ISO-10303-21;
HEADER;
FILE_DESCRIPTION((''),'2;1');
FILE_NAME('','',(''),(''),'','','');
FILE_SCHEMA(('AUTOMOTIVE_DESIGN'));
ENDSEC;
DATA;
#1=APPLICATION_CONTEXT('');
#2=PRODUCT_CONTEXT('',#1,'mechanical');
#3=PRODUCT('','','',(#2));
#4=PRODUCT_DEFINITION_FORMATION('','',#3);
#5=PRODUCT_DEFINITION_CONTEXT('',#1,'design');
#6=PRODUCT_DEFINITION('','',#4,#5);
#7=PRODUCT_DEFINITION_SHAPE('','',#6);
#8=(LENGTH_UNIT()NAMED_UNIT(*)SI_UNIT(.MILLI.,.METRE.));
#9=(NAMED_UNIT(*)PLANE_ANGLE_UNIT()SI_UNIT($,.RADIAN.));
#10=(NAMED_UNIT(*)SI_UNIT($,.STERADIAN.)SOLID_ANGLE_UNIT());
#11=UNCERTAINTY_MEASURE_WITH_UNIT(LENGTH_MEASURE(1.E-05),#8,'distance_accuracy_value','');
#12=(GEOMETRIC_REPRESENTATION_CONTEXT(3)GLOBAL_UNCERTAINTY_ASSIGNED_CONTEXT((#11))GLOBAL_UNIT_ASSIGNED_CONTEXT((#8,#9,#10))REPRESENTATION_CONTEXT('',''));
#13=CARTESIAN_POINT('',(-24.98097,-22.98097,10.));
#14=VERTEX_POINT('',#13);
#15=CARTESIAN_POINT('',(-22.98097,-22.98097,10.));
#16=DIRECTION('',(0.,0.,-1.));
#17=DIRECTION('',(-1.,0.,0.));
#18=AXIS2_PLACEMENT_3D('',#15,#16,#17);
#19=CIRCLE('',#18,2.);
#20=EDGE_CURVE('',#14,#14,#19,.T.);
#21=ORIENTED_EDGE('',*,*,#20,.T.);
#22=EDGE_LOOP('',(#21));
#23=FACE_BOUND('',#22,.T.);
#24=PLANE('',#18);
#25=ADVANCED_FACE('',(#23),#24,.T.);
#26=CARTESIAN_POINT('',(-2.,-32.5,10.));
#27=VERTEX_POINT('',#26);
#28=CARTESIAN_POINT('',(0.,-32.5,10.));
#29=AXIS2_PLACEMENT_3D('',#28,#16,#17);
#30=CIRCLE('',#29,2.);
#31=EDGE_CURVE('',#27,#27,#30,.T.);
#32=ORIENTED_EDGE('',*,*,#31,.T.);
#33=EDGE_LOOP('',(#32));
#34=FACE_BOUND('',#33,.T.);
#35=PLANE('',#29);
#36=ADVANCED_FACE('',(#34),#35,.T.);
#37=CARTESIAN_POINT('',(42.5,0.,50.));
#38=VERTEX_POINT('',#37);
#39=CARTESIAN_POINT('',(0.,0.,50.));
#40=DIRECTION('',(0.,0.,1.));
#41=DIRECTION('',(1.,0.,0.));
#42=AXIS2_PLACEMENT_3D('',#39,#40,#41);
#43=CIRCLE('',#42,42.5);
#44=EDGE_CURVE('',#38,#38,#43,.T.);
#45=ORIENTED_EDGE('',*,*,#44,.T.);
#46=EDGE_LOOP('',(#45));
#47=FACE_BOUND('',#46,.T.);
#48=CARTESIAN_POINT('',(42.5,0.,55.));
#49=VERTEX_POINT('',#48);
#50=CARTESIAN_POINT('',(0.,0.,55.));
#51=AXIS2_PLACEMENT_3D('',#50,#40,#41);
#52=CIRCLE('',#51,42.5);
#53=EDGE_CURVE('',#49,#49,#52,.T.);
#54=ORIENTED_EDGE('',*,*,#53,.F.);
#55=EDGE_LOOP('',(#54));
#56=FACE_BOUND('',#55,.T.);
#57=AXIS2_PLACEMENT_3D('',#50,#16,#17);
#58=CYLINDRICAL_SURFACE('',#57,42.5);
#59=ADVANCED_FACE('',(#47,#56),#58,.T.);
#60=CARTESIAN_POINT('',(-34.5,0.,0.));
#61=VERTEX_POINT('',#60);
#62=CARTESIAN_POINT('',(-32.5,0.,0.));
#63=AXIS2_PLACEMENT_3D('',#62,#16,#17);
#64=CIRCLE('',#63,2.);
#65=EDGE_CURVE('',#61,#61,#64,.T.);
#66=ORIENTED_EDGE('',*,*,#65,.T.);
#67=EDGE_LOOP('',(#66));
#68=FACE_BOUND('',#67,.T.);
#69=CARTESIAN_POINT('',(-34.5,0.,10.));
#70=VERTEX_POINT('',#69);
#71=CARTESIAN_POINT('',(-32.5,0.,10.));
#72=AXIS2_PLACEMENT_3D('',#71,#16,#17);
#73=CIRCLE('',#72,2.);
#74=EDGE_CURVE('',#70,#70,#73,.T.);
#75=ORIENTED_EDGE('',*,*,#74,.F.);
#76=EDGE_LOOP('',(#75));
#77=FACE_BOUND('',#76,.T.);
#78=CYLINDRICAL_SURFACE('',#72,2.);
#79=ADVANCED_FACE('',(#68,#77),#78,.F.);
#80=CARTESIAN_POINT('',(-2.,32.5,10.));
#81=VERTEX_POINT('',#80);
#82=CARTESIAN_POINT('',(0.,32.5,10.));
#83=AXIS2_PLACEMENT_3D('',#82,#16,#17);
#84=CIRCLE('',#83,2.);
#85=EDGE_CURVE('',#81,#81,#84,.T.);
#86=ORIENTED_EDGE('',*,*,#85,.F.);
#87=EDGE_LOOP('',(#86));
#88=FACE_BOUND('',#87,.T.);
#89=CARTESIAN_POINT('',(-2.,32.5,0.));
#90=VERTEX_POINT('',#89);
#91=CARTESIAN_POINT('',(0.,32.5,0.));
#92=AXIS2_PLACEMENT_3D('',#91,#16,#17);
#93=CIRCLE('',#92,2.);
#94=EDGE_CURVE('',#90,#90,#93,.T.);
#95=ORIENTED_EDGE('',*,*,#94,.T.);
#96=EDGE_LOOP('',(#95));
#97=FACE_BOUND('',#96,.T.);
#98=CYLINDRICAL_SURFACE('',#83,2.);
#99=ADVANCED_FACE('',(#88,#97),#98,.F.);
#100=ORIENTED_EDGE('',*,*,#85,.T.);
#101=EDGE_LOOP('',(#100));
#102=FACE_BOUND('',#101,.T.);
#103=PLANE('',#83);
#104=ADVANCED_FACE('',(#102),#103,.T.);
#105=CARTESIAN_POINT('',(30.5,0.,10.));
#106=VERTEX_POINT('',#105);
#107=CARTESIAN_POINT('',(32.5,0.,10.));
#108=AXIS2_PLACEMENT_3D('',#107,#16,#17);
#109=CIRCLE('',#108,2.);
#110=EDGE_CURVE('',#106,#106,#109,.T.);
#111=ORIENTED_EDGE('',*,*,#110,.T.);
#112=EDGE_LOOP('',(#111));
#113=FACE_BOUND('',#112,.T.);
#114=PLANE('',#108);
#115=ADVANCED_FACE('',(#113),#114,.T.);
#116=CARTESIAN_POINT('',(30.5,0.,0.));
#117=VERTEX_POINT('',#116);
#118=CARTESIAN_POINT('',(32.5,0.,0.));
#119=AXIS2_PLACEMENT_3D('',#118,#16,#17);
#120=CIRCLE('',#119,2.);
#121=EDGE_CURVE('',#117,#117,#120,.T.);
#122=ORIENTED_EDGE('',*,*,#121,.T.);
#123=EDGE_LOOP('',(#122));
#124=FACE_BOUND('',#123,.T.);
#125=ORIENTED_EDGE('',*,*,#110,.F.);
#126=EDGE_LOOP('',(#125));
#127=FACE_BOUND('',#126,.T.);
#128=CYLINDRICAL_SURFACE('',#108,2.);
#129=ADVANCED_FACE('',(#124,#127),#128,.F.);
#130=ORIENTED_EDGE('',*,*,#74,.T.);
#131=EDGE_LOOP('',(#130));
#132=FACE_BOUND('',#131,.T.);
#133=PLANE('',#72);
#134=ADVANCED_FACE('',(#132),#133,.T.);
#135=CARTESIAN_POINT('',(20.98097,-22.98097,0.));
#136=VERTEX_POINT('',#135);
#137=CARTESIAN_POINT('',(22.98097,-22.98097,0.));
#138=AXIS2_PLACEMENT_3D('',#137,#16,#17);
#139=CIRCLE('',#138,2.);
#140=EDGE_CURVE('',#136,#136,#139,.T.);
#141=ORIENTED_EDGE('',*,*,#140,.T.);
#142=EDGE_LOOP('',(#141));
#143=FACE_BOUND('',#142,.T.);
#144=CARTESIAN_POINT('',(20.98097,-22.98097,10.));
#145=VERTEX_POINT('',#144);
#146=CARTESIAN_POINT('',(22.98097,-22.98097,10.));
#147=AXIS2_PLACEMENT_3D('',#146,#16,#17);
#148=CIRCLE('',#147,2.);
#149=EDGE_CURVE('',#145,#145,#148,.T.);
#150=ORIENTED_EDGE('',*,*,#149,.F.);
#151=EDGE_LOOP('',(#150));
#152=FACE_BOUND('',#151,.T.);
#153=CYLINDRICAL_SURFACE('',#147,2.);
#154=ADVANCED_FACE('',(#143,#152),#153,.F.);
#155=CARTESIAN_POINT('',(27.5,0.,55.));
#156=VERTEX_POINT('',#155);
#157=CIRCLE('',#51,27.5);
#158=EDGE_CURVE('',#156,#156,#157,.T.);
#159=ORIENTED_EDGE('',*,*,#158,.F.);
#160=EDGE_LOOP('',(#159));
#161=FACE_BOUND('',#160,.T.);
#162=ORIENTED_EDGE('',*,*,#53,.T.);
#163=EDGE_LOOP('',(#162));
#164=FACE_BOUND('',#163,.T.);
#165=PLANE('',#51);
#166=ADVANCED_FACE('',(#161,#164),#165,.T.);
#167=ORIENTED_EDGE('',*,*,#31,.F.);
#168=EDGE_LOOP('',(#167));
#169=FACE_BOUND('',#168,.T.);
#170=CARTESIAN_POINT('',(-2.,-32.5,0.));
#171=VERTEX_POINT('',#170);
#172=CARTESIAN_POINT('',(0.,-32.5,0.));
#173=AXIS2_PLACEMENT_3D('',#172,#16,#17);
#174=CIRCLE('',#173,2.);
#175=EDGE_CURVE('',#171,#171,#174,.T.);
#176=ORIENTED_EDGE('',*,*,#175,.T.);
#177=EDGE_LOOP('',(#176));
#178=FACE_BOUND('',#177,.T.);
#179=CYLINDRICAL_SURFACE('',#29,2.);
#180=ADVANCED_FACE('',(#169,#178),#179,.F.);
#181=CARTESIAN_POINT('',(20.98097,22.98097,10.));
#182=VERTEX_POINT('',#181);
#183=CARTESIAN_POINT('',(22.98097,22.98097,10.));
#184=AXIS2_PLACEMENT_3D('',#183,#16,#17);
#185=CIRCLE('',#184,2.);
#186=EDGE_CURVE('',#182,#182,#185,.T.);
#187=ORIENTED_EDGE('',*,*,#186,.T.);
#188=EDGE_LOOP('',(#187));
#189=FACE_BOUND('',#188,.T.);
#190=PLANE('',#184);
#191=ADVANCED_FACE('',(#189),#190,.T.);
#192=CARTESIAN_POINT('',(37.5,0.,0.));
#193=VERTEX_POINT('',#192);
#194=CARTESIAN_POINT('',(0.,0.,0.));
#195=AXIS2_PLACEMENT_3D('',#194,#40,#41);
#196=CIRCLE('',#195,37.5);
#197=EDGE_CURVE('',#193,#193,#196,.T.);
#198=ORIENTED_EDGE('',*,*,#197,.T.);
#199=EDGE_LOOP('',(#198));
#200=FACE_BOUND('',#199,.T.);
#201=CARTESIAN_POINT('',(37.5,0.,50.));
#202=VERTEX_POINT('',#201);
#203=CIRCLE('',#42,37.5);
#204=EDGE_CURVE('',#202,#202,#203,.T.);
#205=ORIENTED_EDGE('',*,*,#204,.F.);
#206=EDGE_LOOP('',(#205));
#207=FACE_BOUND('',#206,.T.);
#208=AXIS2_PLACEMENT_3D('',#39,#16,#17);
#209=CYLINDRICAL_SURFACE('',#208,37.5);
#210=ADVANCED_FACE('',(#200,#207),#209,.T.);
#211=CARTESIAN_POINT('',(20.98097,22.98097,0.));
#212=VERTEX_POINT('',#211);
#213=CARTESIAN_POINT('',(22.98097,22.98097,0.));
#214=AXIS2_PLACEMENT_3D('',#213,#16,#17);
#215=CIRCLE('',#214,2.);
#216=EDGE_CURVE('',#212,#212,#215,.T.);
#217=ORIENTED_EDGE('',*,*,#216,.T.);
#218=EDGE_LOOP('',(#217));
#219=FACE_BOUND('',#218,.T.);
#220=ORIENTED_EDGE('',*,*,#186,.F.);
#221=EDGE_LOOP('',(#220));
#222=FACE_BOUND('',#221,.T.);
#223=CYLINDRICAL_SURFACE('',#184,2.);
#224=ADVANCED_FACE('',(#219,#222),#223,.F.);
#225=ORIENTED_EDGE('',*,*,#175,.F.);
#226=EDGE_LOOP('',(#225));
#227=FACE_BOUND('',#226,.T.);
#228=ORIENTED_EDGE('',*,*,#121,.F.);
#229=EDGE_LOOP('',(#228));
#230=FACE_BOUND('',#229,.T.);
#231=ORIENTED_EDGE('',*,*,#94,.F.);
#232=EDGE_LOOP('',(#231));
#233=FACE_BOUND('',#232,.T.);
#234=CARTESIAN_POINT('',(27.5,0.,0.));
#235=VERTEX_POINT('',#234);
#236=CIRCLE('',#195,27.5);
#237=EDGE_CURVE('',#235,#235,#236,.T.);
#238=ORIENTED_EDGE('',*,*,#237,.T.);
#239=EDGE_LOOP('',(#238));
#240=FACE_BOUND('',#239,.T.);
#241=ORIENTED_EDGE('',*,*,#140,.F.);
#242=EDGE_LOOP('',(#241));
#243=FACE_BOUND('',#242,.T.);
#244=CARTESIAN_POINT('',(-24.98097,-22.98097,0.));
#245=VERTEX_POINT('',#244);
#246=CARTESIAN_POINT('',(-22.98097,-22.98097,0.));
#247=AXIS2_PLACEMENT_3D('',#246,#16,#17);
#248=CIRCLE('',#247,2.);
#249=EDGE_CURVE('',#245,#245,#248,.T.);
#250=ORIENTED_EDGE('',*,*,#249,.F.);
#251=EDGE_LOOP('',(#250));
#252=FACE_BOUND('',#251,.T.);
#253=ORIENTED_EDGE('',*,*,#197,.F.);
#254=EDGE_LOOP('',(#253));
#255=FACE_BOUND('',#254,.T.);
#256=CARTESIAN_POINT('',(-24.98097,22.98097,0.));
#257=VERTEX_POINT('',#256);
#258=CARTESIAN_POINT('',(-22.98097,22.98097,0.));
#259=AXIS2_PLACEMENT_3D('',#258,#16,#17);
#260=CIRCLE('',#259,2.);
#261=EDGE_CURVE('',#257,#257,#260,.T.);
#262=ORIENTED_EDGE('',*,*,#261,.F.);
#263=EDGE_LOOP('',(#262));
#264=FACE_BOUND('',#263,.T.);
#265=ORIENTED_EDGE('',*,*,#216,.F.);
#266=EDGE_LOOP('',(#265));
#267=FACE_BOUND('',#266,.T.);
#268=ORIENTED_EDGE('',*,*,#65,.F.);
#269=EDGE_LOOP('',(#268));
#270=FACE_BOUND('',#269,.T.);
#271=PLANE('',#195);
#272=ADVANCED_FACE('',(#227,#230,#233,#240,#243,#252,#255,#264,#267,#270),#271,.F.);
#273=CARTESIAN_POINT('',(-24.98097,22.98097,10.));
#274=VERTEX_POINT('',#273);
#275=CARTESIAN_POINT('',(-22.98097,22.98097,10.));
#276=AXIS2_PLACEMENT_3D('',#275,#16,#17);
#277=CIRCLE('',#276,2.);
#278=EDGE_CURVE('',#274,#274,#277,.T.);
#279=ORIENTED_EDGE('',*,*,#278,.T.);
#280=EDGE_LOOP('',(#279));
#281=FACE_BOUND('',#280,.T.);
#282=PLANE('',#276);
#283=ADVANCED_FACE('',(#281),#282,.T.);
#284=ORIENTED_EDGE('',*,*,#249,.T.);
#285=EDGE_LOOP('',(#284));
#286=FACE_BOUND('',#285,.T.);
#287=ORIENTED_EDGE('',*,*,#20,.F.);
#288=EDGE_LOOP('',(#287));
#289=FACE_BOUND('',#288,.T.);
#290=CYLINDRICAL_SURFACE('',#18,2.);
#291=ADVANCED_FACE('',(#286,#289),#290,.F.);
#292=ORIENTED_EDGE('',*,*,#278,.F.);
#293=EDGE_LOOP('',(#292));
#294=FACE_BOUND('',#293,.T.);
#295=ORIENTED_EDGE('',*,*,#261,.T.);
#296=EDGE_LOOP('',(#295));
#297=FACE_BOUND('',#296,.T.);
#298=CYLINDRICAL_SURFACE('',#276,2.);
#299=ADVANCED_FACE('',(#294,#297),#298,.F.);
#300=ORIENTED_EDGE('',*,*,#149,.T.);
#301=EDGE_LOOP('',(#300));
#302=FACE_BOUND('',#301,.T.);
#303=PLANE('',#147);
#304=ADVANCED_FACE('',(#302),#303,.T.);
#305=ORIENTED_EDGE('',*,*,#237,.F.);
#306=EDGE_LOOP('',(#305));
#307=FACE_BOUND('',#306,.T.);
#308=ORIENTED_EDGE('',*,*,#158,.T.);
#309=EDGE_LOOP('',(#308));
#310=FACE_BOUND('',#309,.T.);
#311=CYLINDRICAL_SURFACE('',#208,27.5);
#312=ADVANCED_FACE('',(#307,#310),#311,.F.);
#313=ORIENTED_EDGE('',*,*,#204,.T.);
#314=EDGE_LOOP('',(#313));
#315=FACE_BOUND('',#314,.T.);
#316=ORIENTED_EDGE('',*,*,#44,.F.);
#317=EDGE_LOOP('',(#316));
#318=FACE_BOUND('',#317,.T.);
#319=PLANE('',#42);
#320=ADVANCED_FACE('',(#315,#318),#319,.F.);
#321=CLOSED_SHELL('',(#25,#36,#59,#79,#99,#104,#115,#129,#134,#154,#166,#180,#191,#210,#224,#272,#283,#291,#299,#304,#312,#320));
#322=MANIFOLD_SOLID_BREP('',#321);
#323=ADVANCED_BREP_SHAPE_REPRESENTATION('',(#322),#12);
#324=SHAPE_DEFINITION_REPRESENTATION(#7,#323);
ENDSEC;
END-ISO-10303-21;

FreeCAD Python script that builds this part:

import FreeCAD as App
import Part
import Sketcher

V = App.Vector

doc = App.newDocument("Part")
body = doc.addObject("PartDesign::Body", "Body")

sketch1 = doc.addObject("Sketcher::SketchObject", "Sketch")
body.addObject(sketch1)
sketch1.AttachmentSupport = (doc.XY_Plane, [""])
sketch1.MapMode = "FlatFace"
sketch1.addGeometry([
    Part.Circle(V(0, 0, 0), V(0, 0, 1), 38),
    Part.Circle(V(0, 0, 0), V(0, 0, 1), 28),
], False)
sketch1.addConstraint([
    Sketcher.Constraint("Coincident", 0, 3, -1, 1),
    Sketcher.Constraint("Coincident", 1, 3, -1, 1),
    Sketcher.Constraint("Diameter", 0, 75.0),
    Sketcher.Constraint("Diameter", 1, 55.0),
])
pad1 = doc.addObject("PartDesign::Pad", "Pad")
body.addObject(pad1)
pad1.Profile = sketch1
pad1.Length = 50

sketch2 = doc.addObject("Sketcher::SketchObject", "Sketch001")
body.addObject(sketch2)
sketch2.AttachmentSupport = (doc.XY_Plane, [""])
sketch2.MapMode = "FlatFace"
sketch2.AttachmentOffset = App.Placement(V(0, 0, 50), App.Rotation())
sketch2.addGeometry([
    Part.Circle(V(0, 0, 0), V(0, 0, 1), 42),
    Part.Circle(V(0, 0, 0), V(0, 0, 1), 28),
], False)
sketch2.addConstraint([
    Sketcher.Constraint("Coincident", 0, 3, -1, 1),
    Sketcher.Constraint("Coincident", 1, 3, -1, 1),
    Sketcher.Constraint("Diameter", 0, 85.0),
    Sketcher.Constraint("Diameter", 1, 55.0),
])
pad2 = doc.addObject("PartDesign::Pad", "Pad001")
body.addObject(pad2)
pad2.Profile = sketch2
pad2.Length = 5

sketch3 = doc.addObject("Sketcher::SketchObject", "Sketch002")
body.addObject(sketch3)
sketch3.AttachmentSupport = (doc.XY_Plane, [""])
sketch3.MapMode = "FlatFace"
sketch3.addGeometry([
    Part.Circle(V(0, 32.5, 0), V(0, 0, 1), 2),
    Part.Circle(V(-23, 23, 0), V(0, 0, 1), 2),
    Part.Circle(V(-32.5, 0, 0), V(0, 0, 1), 2),
    Part.Circle(V(-23, -23, 0), V(0, 0, 1), 2),
    Part.Circle(V(0, -32.5, 0), V(0, 0, 1), 2),
    Part.Circle(V(23, -23, 0), V(0, 0, 1), 2),
    Part.Circle(V(32.5, 0, 0), V(0, 0, 1), 2),
    Part.Circle(V(23, 23, 0), V(0, 0, 1), 2),
], False)
sketch3.addConstraint([
    Sketcher.Constraint("Equal", 0, 1),
    Sketcher.Constraint("Equal", 1, 2),
    Sketcher.Constraint("Equal", 2, 3),
    Sketcher.Constraint("Equal", 3, 4),
    Sketcher.Constraint("Equal", 4, 5),
    Sketcher.Constraint("Equal", 5, 6),
    Sketcher.Constraint("Equal", 6, 7),
    Sketcher.Constraint("Symmetric", 0, 3, 4, 3, -1, 1),
    Sketcher.Constraint("Symmetric", 1, 3, 5, 3, -1, 1),
    Sketcher.Constraint("Symmetric", 2, 3, 6, 3, -1, 1),
    Sketcher.Constraint("Symmetric", 3, 3, 7, 3, -1, 1),
    Sketcher.Constraint("Symmetric", 3, 3, 5, 3, -2),
    Sketcher.Constraint("PointOnObject", 0, 3, -2),
    Sketcher.Constraint("PointOnObject", 2, 3, -1),
    Sketcher.Constraint("Diameter", 0, 4.0),
    Sketcher.Constraint("DistanceY", 4, 3, 0, 3, 65.0),
    Sketcher.Constraint("DistanceX", 2, 3, -1, 1, 32.5),
    Sketcher.Constraint("DistanceX", 1, 3, -1, 1, 22.98097),
    Sketcher.Constraint("DistanceY", -1, 1, 1, 3, 22.98097),
])
pocket1 = doc.addObject("PartDesign::Pocket", "Pocket")
body.addObject(pocket1)
pocket1.Profile = sketch3
pocket1.Length = 10
pocket1.Reversed = True

doc.recompute()
